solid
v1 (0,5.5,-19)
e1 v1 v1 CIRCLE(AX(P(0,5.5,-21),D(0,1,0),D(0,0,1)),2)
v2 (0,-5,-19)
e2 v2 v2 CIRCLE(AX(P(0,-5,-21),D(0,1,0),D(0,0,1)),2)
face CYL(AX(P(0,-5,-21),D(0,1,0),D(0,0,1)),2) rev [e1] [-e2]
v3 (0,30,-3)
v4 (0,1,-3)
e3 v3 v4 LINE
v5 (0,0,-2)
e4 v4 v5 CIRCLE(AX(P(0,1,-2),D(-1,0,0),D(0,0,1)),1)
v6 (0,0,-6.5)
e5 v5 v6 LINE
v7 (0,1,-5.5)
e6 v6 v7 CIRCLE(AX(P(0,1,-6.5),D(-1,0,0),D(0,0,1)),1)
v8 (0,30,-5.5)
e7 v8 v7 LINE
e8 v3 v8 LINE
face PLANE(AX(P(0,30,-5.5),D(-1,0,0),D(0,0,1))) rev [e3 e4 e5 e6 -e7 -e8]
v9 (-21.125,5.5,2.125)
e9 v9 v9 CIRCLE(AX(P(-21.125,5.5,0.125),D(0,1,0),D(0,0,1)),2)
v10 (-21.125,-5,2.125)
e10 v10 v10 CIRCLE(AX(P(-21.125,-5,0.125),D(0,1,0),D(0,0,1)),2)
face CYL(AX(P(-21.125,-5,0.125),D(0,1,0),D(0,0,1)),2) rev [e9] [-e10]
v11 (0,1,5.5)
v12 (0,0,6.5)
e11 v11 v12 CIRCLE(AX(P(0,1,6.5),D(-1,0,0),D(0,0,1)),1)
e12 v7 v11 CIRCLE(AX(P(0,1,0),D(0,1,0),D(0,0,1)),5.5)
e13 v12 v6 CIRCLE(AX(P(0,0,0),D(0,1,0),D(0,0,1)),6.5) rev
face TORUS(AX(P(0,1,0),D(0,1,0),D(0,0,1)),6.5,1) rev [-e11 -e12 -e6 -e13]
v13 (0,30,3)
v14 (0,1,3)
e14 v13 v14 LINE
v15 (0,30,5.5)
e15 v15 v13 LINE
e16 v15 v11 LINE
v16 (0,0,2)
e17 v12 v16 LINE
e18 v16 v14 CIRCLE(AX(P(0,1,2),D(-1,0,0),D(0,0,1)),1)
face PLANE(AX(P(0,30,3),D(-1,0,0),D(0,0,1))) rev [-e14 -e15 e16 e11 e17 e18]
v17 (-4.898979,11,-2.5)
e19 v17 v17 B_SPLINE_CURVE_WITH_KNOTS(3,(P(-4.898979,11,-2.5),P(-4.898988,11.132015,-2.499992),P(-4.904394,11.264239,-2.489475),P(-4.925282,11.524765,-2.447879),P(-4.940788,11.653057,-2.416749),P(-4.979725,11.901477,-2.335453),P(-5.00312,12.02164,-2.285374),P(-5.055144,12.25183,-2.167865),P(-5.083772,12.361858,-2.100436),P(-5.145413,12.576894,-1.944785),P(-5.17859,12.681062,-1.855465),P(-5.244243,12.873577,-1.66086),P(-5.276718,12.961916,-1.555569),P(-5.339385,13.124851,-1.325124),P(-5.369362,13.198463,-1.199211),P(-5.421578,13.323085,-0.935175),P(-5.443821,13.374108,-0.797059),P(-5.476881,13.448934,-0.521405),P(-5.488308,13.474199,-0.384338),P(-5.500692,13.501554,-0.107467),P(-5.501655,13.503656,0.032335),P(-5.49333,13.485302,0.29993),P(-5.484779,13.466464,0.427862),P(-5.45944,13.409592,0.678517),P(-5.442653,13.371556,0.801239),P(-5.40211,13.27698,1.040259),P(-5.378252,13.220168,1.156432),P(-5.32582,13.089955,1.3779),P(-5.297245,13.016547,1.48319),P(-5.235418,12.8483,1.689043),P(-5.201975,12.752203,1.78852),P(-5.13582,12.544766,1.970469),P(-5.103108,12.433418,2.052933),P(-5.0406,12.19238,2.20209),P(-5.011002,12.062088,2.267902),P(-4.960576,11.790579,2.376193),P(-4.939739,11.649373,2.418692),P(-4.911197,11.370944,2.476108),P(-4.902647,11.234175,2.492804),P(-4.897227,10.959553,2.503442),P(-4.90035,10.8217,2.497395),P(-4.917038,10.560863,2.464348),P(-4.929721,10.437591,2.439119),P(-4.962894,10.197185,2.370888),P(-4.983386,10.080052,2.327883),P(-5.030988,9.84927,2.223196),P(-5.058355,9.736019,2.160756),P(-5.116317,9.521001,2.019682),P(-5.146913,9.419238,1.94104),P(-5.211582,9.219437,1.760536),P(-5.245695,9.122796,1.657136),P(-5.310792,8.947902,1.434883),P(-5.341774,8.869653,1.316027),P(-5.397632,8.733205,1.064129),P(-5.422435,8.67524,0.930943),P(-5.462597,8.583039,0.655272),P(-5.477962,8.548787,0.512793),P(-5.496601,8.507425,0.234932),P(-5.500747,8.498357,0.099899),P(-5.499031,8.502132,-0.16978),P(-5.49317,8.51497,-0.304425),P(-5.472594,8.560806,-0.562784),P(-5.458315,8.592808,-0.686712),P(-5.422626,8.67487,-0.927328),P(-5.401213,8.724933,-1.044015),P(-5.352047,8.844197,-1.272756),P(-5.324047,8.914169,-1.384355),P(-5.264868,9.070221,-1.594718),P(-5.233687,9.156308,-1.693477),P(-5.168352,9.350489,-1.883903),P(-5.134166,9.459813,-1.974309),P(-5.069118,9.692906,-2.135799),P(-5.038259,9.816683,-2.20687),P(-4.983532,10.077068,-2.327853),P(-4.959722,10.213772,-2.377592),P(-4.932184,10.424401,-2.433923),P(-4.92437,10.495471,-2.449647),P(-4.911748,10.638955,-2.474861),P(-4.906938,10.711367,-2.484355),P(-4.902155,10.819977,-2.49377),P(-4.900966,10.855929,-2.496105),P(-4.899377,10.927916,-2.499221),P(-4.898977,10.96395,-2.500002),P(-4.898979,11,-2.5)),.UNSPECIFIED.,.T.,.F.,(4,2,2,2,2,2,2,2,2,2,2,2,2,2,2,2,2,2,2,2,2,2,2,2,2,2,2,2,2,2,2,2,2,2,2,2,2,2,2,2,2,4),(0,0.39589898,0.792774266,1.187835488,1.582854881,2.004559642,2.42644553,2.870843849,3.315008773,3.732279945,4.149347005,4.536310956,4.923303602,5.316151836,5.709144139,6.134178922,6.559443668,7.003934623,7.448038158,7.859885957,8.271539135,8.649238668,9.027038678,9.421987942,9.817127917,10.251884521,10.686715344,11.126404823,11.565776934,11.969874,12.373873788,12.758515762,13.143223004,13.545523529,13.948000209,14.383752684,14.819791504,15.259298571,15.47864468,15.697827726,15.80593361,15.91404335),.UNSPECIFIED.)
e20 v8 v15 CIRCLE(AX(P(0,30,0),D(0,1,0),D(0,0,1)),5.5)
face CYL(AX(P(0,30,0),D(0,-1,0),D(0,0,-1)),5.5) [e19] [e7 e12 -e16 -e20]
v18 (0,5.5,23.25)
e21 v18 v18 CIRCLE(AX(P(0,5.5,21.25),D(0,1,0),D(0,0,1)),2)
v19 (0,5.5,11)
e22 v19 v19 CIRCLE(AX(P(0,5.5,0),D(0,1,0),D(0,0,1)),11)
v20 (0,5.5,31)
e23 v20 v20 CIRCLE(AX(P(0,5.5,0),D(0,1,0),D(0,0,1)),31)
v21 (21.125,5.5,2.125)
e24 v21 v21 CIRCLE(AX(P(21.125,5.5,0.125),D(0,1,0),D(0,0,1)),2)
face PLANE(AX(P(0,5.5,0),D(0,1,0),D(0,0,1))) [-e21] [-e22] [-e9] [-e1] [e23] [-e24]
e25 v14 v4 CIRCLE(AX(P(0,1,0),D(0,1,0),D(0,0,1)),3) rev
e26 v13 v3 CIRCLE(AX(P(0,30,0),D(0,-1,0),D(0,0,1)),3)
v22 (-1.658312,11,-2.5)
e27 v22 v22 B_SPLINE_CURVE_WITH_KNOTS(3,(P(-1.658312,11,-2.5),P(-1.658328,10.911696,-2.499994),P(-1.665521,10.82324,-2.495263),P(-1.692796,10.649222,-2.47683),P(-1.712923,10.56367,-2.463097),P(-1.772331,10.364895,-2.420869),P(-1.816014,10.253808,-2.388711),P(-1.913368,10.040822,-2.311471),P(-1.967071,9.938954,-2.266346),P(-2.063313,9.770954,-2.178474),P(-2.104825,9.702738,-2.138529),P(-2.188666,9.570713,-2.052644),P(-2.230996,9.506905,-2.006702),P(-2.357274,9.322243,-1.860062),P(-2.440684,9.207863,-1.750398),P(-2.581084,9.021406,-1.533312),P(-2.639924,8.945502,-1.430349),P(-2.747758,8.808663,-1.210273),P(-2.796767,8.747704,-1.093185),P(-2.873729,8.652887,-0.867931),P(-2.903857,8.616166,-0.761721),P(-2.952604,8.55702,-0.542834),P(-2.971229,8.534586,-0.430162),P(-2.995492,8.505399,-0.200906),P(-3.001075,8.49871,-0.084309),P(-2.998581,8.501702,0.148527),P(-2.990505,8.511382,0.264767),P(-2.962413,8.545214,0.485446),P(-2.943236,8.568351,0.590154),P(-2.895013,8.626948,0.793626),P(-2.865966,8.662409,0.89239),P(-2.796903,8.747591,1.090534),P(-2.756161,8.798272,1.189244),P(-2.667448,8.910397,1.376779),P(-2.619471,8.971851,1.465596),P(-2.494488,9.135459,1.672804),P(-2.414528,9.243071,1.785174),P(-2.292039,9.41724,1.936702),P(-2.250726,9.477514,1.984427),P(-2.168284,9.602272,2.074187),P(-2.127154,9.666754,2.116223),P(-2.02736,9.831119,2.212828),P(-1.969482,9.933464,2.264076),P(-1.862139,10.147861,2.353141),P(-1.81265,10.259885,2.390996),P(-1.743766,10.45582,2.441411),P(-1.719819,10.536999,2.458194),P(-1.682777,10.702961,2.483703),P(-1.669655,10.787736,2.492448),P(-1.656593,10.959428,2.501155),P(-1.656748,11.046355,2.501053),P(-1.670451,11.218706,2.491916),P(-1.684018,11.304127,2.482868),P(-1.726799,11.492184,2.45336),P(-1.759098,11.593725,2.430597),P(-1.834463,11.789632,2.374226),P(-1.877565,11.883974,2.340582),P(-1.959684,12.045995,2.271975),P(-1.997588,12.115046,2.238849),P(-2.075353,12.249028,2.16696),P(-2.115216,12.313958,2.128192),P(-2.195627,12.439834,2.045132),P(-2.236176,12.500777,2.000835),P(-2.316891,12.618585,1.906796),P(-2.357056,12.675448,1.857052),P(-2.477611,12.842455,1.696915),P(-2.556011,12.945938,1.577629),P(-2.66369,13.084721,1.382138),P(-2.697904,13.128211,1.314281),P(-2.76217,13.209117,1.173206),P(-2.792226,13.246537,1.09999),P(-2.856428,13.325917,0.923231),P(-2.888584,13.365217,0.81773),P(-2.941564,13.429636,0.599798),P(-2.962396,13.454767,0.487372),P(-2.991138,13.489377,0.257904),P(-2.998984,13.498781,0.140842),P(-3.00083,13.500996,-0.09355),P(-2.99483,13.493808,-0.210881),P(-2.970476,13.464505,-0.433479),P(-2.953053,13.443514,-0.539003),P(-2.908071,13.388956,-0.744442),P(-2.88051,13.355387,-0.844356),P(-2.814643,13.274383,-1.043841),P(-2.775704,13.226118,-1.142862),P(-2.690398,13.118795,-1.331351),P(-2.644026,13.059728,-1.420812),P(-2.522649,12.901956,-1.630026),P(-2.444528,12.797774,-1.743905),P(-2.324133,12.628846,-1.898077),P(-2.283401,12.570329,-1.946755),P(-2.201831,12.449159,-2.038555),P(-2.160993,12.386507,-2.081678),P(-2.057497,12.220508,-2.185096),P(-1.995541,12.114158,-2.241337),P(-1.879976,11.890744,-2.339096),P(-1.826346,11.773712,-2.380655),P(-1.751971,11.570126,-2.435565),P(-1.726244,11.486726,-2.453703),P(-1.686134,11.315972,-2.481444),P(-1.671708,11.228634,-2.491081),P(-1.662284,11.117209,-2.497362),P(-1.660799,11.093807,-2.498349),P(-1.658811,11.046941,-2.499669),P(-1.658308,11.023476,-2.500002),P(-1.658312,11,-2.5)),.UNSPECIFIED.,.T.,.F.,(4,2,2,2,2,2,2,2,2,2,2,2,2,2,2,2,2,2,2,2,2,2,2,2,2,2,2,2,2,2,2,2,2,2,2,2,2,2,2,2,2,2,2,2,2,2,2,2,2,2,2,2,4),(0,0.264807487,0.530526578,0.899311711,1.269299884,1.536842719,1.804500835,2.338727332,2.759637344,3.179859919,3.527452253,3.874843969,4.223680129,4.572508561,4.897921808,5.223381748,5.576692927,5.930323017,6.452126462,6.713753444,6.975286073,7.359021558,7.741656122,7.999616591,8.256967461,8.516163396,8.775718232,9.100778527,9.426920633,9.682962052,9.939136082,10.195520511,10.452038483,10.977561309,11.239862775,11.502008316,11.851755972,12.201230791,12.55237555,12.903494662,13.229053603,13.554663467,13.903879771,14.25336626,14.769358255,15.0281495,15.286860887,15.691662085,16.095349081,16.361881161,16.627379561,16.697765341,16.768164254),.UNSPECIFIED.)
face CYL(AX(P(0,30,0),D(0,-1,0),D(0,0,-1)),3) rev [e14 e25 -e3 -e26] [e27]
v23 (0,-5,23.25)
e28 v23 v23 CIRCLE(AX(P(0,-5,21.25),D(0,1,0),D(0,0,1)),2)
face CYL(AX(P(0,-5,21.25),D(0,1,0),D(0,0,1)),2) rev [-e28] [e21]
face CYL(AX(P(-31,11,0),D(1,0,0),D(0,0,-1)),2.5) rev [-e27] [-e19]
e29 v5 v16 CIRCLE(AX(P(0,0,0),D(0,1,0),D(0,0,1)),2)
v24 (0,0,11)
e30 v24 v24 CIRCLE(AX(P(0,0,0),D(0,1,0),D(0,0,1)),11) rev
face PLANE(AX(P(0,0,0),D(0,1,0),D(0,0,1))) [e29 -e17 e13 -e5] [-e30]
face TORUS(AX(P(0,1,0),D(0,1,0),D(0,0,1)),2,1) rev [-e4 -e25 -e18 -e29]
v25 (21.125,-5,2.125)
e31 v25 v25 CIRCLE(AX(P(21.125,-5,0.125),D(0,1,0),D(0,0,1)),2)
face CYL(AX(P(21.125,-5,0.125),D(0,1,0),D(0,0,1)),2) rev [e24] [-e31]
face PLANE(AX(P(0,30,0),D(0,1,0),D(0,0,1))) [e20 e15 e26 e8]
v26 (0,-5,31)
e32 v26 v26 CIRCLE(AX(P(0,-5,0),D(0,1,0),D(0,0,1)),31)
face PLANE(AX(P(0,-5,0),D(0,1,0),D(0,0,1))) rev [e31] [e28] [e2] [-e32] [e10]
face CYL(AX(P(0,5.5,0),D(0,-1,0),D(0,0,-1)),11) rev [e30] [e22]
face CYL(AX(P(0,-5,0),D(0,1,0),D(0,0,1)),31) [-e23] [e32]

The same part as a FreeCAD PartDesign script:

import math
import FreeCAD as App
import Part
import Sketcher
Q = App.Units.Quantity


def edges_at(feature, points):
    """Names of the edges that pass closest to the given points."""
    edges = feature.Shape.Edges
    near = lambda p: min(range(len(edges)), key=lambda i: edges[i].distToShape(Part.Vertex(*p))[0])
    return sorted({f"Edge{near(p) + 1}" for p in points})

doc = App.newDocument("Part")
body = doc.addObject("PartDesign::Body", "Body")

# Sketch on XZ plane
sketch1 = body.newObject("Sketcher::SketchObject", "Sketch")
sketch1.AttachmentSupport = (doc.getObject("XZ_Plane"), [""])
sketch1.MapMode = "FlatFace"
sketch1.addGeometry(Part.LineSegment(App.Vector(0, -3, 0), App.Vector(0, -5.5, 0)), False)
sketch1.addGeometry(Part.ArcOfCircle(Part.Circle(App.Vector(0, 0, 0), App.Vector(0, 0, 1), 5.5), math.radians(90), math.radians(270)), False)
sketch1.addGeometry(Part.LineSegment(App.Vector(0, 5.5, 0), App.Vector(0, 3, 0)), False)
sketch1.addGeometry(Part.ArcOfCircle(Part.Circle(App.Vector(0, 0, 0), App.Vector(0, 0, 1), 3), math.radians(90), math.radians(270)), False)
sketch1.addConstraint(Sketcher.Constraint("Coincident", 0, 2, 1, 2))
sketch1.addConstraint(Sketcher.Constraint("Coincident", 1, 1, 2, 1))
sketch1.addConstraint(Sketcher.Constraint("Coincident", 2, 2, 3, 1))
sketch1.addConstraint(Sketcher.Constraint("Coincident", 3, 2, 0, 1))
sketch1.addConstraint(Sketcher.Constraint("Vertical", 0))
sketch1.addConstraint(Sketcher.Constraint("Vertical", 2))
sketch1.addConstraint(Sketcher.Constraint("Coincident", 1, 3, -1, 1))
sketch1.addConstraint(Sketcher.Constraint("Coincident", 3, 3, -1, 1))
sketch1.addConstraint(Sketcher.Constraint("PointOnObject", 0, 2, -2))
sketch1.addConstraint(Sketcher.Constraint("PointOnObject", 1, 1, -2))
sketch1.addConstraint(Sketcher.Constraint("Radius", 3, Q("3 mm")))
sketch1.addConstraint(Sketcher.Constraint("Radius", 1, Q("5.5 mm")))
pad1 = body.newObject("PartDesign::Pad", "Pad")
pad1.Profile = sketch1
pad1.Length = 30
pad1.Reversed = True

# Sketch on XZ plane
sketch2 = body.newObject("Sketcher::SketchObject", "Sketch001")
sketch2.AttachmentSupport = (doc.getObject("XZ_Plane"), [""])
sketch2.MapMode = "FlatFace"
sketch2.addGeometry(Part.Circle(App.Vector(0, 0, 0), App.Vector(0, 0, 1), 31), False)
sketch2.addConstraint(Sketcher.Constraint("Coincident", 0, 3, -1, 1))
sketch2.addConstraint(Sketcher.Constraint("Diameter", 0, Q("62 mm")))
pad2 = body.newObject("PartDesign::Pad", "Pad001")
pad2.Profile = sketch2
pad2.Length = 5
doc.recompute()

fillet = body.newObject("PartDesign::Fillet", "Fillet")
fillet.Base = (pad2, edges_at(pad2, [(-5.5, 0, 0)]))
fillet.Radius = 1

# Sketch on XZ plane
sketch3 = body.newObject("Sketcher::SketchObject", "Sketch002")
sketch3.AttachmentSupport = (doc.getObject("XZ_Plane"), [""])
sketch3.MapMode = "FlatFace"
sketch3.AttachmentOffset = App.Placement(App.Vector(0, 0, -5.5), App.Rotation())
sketch3.addGeometry(Part.Circle(App.Vector(0, 0, 0), App.Vector(0, 0, 1), 31), False)
sketch3.addGeometry(Part.Circle(App.Vector(0, 0, 0), App.Vector(0, 0, 1), 11), False)
sketch3.addConstraint(Sketcher.Constraint("Coincident", 0, 3, -1, 1))
sketch3.addConstraint(Sketcher.Constraint("Coincident", 1, 3, -1, 1))
sketch3.addConstraint(Sketcher.Constraint("Diameter", 0, Q("62 mm")))
sketch3.addConstraint(Sketcher.Constraint("Diameter", 1, Q("22 mm")))
pad3 = body.newObject("PartDesign::Pad", "Pad002")
pad3.Profile = sketch3
pad3.Length = 5.5

# Sketch on XZ plane
sketch4 = body.newObject("Sketcher::SketchObject", "Sketch003")
sketch4.AttachmentSupport = (doc.getObject("XZ_Plane"), [""])
sketch4.MapMode = "FlatFace"
sketch4.AttachmentOffset = App.Placement(App.Vector(0, 0, -5.5), App.Rotation())
sketch4.addGeometry(Part.Circle(App.Vector(0, -21, 0), App.Vector(0, 0, 1), 2), False)
sketch4.addGeometry(Part.Circle(App.Vector(21.1, 0.1, 0), App.Vector(0, 0, 1), 2), False)
sketch4.addGeometry(Part.Circle(App.Vector(0, 21.2, 0), App.Vector(0, 0, 1), 2), False)
sketch4.addGeometry(Part.Circle(App.Vector(-21.1, 0.1, 0), App.Vector(0, 0, 1), 2), False)
sketch4.addConstraint(Sketcher.Constraint("Equal", 0, 1))
sketch4.addConstraint(Sketcher.Constraint("Equal", 1, 2))
sketch4.addConstraint(Sketcher.Constraint("Equal", 2, 3))
sketch4.addConstraint(Sketcher.Constraint("Symmetric", 1, 3, 3, 3, -2))
sketch4.addConstraint(Sketcher.Constraint("PointOnObject", 0, 3, -2))
sketch4.addConstraint(Sketcher.Constraint("PointOnObject", 2, 3, -2))
sketch4.addConstraint(Sketcher.Constraint("Diameter", 0, Q("4 mm")))
sketch4.addConstraint(Sketcher.Constraint("DistanceY", 0, 3, -1, 1, Q("21 mm")))
sketch4.addConstraint(Sketcher.Constraint("DistanceY", -1, 1, 2, 3, Q("21.25 mm")))
sketch4.addConstraint(Sketcher.Constraint("DistanceX", 3, 3, 1, 3, Q("42.25 mm")))
sketch4.addConstraint(Sketcher.Constraint("DistanceY", -1, 1, 1, 3, Q("0.125 mm")))
pocket1 = body.newObject("PartDesign::Pocket", "Pocket")
pocket1.Profile = sketch4
pocket1.Type = "ThroughAll"
pocket1.Midplane = True

# Sketch on YZ plane
sketch5 = body.newObject("Sketcher::SketchObject", "Sketch004")
sketch5.AttachmentSupport = (doc.getObject("YZ_Plane"), [""])
sketch5.MapMode = "FlatFace"
sketch5.addGeometry(Part.Circle(App.Vector(11, 0, 0), App.Vector(0, 0, 1), 2.5), False)
sketch5.addConstraint(Sketcher.Constraint("PointOnObject", 0, 3, -1))
sketch5.addConstraint(Sketcher.Constraint("Diameter", 0, Q("5 mm")))
sketch5.addConstraint(Sketcher.Constraint("DistanceX", -1, 1, 0, 3, Q("11 mm")))
pocket2 = body.newObject("PartDesign::Pocket", "Pocket001")
pocket2.Profile = sketch5
pocket2.Type = "ThroughAll"
pocket2.Midplane = True
doc.recompute()

fillet2 = body.newObject("PartDesign::Fillet", "Fillet001")
fillet2.Base = (pocket2, edges_at(pocket2, [(-3, 0, 0)]))
fillet2.Radius = 1

doc.recompute()
